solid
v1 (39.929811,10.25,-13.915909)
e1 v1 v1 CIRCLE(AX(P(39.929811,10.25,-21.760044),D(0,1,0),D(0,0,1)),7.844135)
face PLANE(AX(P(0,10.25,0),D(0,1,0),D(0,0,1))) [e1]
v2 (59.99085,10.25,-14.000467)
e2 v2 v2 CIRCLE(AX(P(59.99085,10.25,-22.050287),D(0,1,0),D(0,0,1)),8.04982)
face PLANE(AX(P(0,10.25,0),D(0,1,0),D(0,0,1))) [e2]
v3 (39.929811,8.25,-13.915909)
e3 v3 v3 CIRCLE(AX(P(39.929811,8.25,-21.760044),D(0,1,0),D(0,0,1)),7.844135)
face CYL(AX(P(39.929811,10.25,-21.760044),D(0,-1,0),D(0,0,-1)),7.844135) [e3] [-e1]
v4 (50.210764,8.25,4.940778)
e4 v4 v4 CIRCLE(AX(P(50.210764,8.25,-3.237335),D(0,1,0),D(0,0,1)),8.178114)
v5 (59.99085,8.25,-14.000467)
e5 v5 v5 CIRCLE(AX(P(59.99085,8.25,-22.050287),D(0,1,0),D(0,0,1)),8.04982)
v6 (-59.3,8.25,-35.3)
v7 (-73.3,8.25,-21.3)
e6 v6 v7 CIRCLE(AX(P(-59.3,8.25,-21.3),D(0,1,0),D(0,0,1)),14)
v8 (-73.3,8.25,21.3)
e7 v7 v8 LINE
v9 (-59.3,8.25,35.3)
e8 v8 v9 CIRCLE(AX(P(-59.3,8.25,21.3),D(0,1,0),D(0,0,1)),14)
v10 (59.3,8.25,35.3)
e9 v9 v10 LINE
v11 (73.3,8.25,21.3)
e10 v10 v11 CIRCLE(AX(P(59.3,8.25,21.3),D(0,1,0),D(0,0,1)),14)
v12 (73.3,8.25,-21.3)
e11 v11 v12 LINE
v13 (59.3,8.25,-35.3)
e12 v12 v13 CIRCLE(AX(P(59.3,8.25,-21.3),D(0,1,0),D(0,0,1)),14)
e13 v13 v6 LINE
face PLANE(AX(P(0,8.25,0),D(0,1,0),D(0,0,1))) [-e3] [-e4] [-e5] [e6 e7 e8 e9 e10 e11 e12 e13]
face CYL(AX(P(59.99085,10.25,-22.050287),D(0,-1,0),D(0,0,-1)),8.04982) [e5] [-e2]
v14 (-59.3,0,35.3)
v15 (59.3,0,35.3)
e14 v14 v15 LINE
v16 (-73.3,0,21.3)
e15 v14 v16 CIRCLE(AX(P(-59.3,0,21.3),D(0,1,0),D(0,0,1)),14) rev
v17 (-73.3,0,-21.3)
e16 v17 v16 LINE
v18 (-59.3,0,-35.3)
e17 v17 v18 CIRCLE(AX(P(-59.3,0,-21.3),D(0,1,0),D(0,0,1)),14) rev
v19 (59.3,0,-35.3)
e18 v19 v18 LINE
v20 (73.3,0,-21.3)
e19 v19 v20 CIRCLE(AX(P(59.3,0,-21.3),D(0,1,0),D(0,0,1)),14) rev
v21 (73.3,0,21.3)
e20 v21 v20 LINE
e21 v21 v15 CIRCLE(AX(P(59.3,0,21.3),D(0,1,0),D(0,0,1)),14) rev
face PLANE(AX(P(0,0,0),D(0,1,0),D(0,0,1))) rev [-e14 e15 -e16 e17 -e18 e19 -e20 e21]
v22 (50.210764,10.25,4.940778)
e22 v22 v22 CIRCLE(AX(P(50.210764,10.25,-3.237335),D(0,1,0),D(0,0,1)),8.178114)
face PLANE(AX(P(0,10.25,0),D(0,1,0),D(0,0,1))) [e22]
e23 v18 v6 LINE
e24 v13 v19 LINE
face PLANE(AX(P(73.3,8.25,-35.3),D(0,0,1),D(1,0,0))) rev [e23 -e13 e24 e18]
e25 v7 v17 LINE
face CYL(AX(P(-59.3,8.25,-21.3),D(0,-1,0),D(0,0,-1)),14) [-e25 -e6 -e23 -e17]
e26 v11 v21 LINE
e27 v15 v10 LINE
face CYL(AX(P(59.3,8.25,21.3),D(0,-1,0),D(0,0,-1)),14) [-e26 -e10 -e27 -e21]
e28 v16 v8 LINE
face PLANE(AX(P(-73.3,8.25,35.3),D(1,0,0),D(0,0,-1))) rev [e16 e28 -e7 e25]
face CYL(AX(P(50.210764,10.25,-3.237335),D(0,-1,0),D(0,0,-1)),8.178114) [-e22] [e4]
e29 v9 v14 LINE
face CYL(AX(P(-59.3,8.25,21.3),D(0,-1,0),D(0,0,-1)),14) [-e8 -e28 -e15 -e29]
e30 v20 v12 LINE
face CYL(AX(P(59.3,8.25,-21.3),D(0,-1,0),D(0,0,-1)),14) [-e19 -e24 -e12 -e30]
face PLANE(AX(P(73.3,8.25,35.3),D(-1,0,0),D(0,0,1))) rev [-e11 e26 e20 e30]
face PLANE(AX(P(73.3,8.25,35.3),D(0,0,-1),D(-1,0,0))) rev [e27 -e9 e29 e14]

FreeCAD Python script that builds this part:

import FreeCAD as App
import Part
import Sketcher

V = App.Vector
Q = App.Units.Quantity


def edges_at(feature, points):
    """Names of the edges that pass closest to the given points."""
    edges = feature.Shape.Edges
    near = lambda p: min(range(len(edges)), key=lambda i: edges[i].distToShape(Part.Vertex(*p))[0])
    return sorted({f"Edge{near(p) + 1}" for p in points})


def add_polygon(sketch, points):
    """Adds a closed chain of lines whose ends are joined by coincident constraints."""
    first, n = sketch.GeometryCount, len(points)
    for a, b in zip(points, points[1:] + points[:1]):
        sketch.addGeometry(Part.LineSegment(App.Vector(*a, 0), App.Vector(*b, 0)), False)
    for i in range(n):
        sketch.addConstraint(Sketcher.Constraint("Coincident", first + i, 2, first + (i + 1) % n, 1))

doc = App.newDocument("Part")
body = doc.addObject("PartDesign::Body", "Body")

# Sketch on XZ plane
sketch1 = body.newObject("Sketcher::SketchObject", "Sketch")
sketch1.AttachmentSupport = (doc.getObject("XZ_Plane"), [""])
sketch1.MapMode = "FlatFace"
add_polygon(sketch1, [(-73.3, -35.3), (-73.3, 35.3), (73.3, 35.3), (73.3, -35.3)])  # lines 0-3
sketch1.addConstraint([
    Sketcher.Constraint("Vertical", 0),
    Sketcher.Constraint("Horizontal", 1),
    Sketcher.Constraint("Vertical", 2),
    Sketcher.Constraint("Horizontal", 3),
    Sketcher.Constraint("Symmetric", 0, 2, 2, 2, -1, 1),
    Sketcher.Constraint("DistanceX", 1, 1, 1, 2, Q("146.6 mm")),
    Sketcher.Constraint("DistanceY", 0, 1, 0, 2, Q("70.6 mm")),
])
pad1 = body.newObject("PartDesign::Pad", "Pad")
pad1.Profile = sketch1
pad1.Length = 8.25
pad1.Reversed = True
doc.recompute()

fillet = body.newObject("PartDesign::Fillet", "Fillet")
fillet.Base = (pad1, edges_at(pad1, [
    (-73.3, 4.125, -35.3),
    (73.3, 4.125, -35.3),
    (73.3, 4.125, 35.3),
    (-73.3, 4.125, 35.3),
]))
fillet.Radius = 14

# Sketch on XZ plane
sketch2 = body.newObject("Sketcher::SketchObject", "Sketch001")
sketch2.AttachmentSupport = (doc.getObject("XZ_Plane"), [""])
sketch2.MapMode = "FlatFace"
sketch2.AttachmentOffset = App.Placement(V(0, 0, -8.25), App.Rotation())
sketch2.addGeometry([
    Part.Circle(V(39.929811, -21.760044, 0), V(0, 0, 1), 7.844135),
    Part.Circle(V(59.99085, -22.050287, 0), V(0, 0, 1), 8.04982),
    Part.Circle(V(50.210764, -3.237335, 0), V(0, 0, 1), 8.178114),
], False)
sketch2.addConstraint([
    Sketcher.Constraint("Diameter", 0, Q("15.688271 mm")),
    Sketcher.Constraint("Diameter", 1, Q("16.099639 mm")),
    Sketcher.Constraint("Diameter", 2, Q("16.356227 mm")),
    Sketcher.Constraint("DistanceX", -1, 1, 0, 3, Q("39.929811 mm")),
    Sketcher.Constraint("DistanceX", -1, 1, 1, 3, Q("59.99085 mm")),
    Sketcher.Constraint("DistanceY", 0, 3, 2, 3, Q("18.522709 mm")),
    Sketcher.Constraint("DistanceY", 1, 3, 2, 3, Q("18.812951 mm")),
    Sketcher.Constraint("DistanceY", 0, 3, -1, 1, Q("21.760044 mm")),
    Sketcher.Constraint("DistanceX", -1, 1, 2, 3, Q("50.210764 mm")),
])
pad2 = body.newObject("PartDesign::Pad", "Pad001")
pad2.Profile = sketch2
pad2.Length = 2
pad2.Reversed = True

doc.recompute()
